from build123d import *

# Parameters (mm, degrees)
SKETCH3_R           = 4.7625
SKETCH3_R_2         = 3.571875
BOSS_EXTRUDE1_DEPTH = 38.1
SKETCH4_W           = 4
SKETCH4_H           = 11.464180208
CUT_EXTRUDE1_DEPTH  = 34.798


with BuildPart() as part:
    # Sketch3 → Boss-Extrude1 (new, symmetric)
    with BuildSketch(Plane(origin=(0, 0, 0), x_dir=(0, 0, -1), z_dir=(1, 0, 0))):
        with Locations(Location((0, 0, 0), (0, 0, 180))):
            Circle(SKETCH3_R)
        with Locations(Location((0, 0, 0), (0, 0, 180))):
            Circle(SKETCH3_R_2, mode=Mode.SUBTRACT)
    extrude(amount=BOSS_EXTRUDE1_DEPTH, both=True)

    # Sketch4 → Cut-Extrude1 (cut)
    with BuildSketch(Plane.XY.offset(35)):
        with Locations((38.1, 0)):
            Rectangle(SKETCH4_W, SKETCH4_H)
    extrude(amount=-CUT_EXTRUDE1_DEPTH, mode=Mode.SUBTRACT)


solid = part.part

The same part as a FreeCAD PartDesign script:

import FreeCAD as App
import Part
import Sketcher
from FreeCAD import Vector
Q = App.Units.Quantity

doc = App.newDocument("Part")
body = doc.addObject("PartDesign::Body", "Body")

# Sketch on YZ plane
sketch1 = body.newObject("Sketcher::SketchObject", "Sketch")
sketch1.AttachmentSupport = (doc.getObject("YZ_Plane"), [""])
sketch1.MapMode = "FlatFace"
sketch1.addGeometry(Part.Circle(Vector(0, 0, 0), Vector(0, 0, 1), 4.7625), False)
sketch1.addGeometry(Part.Circle(Vector(0, 0, 0), Vector(0, 0, 1), 3.571875), False)
sketch1.addConstraint(Sketcher.Constraint("Coincident", 0, 3, -1, 1))
sketch1.addConstraint(Sketcher.Constraint("Coincident", 1, 3, -1, 1))
sketch1.addConstraint(Sketcher.Constraint("Diameter", 0, Q("0.375 in")))
sketch1.addConstraint(Sketcher.Constraint("Diameter", 1, Q("0.28125 in")))
pad1 = body.newObject("PartDesign::Pad", "Pad")
pad1.Profile = sketch1
pad1.Length = Q("3 in")
pad1.Midplane = True

# Sketch on XY plane
sketch2 = body.newObject("Sketcher::SketchObject", "Sketch001")
sketch2.AttachmentSupport = (doc.getObject("XY_Plane"), [""])
sketch2.MapMode = "FlatFace"
sketch2.AttachmentOffset = App.Placement(Vector(0, 0, 35), App.Rotation())
sketch2.addGeometry(Part.LineSegment(Vector(36.1, 5.73209, 0), Vector(36.1, -5.73209, 0)), False)
sketch2.addGeometry(Part.LineSegment(Vector(36.1, -5.73209, 0), Vector(40.1, -5.73209, 0)), False)
sketch2.addGeometry(Part.LineSegment(Vector(40.1, -5.73209, 0), Vector(40.1, 5.73209, 0)), False)
sketch2.addGeometry(Part.LineSegment(Vector(40.1, 5.73209, 0), Vector(36.1, 5.73209, 0)), False)
sketch2.addConstraint(Sketcher.Constraint("Coincident", 0, 2, 1, 1))
sketch2.addConstraint(Sketcher.Constraint("Coincident", 1, 2, 2, 1))
sketch2.addConstraint(Sketcher.Constraint("Coincident", 2, 2, 3, 1))
sketch2.addConstraint(Sketcher.Constraint("Coincident", 3, 2, 0, 1))
sketch2.addConstraint(Sketcher.Constraint("Vertical", 0))
sketch2.addConstraint(Sketcher.Constraint("Horizontal", 1))
sketch2.addConstraint(Sketcher.Constraint("Vertical", 2))
sketch2.addConstraint(Sketcher.Constraint("Horizontal", 3))
sketch2.addConstraint(Sketcher.Constraint("DistanceX", 1, 1, 1, 2, Q("4 mm")))
sketch2.addConstraint(Sketcher.Constraint("DistanceY", 0, 2, 0, 1, Q("11.46418 mm")))
sketch2.addConstraint(Sketcher.Constraint("DistanceX", -1, 1, 0, 2, Q("36.1 mm")))
sketch2.addConstraint(Sketcher.Constraint("DistanceY", 0, 2, -1, 1, Q("5.73209 mm")))
pocket1 = body.newObject("PartDesign::Pocket", "Pocket")
pocket1.Profile = sketch2
pocket1.Length = Q("1.37 in")

doc.recompute()
